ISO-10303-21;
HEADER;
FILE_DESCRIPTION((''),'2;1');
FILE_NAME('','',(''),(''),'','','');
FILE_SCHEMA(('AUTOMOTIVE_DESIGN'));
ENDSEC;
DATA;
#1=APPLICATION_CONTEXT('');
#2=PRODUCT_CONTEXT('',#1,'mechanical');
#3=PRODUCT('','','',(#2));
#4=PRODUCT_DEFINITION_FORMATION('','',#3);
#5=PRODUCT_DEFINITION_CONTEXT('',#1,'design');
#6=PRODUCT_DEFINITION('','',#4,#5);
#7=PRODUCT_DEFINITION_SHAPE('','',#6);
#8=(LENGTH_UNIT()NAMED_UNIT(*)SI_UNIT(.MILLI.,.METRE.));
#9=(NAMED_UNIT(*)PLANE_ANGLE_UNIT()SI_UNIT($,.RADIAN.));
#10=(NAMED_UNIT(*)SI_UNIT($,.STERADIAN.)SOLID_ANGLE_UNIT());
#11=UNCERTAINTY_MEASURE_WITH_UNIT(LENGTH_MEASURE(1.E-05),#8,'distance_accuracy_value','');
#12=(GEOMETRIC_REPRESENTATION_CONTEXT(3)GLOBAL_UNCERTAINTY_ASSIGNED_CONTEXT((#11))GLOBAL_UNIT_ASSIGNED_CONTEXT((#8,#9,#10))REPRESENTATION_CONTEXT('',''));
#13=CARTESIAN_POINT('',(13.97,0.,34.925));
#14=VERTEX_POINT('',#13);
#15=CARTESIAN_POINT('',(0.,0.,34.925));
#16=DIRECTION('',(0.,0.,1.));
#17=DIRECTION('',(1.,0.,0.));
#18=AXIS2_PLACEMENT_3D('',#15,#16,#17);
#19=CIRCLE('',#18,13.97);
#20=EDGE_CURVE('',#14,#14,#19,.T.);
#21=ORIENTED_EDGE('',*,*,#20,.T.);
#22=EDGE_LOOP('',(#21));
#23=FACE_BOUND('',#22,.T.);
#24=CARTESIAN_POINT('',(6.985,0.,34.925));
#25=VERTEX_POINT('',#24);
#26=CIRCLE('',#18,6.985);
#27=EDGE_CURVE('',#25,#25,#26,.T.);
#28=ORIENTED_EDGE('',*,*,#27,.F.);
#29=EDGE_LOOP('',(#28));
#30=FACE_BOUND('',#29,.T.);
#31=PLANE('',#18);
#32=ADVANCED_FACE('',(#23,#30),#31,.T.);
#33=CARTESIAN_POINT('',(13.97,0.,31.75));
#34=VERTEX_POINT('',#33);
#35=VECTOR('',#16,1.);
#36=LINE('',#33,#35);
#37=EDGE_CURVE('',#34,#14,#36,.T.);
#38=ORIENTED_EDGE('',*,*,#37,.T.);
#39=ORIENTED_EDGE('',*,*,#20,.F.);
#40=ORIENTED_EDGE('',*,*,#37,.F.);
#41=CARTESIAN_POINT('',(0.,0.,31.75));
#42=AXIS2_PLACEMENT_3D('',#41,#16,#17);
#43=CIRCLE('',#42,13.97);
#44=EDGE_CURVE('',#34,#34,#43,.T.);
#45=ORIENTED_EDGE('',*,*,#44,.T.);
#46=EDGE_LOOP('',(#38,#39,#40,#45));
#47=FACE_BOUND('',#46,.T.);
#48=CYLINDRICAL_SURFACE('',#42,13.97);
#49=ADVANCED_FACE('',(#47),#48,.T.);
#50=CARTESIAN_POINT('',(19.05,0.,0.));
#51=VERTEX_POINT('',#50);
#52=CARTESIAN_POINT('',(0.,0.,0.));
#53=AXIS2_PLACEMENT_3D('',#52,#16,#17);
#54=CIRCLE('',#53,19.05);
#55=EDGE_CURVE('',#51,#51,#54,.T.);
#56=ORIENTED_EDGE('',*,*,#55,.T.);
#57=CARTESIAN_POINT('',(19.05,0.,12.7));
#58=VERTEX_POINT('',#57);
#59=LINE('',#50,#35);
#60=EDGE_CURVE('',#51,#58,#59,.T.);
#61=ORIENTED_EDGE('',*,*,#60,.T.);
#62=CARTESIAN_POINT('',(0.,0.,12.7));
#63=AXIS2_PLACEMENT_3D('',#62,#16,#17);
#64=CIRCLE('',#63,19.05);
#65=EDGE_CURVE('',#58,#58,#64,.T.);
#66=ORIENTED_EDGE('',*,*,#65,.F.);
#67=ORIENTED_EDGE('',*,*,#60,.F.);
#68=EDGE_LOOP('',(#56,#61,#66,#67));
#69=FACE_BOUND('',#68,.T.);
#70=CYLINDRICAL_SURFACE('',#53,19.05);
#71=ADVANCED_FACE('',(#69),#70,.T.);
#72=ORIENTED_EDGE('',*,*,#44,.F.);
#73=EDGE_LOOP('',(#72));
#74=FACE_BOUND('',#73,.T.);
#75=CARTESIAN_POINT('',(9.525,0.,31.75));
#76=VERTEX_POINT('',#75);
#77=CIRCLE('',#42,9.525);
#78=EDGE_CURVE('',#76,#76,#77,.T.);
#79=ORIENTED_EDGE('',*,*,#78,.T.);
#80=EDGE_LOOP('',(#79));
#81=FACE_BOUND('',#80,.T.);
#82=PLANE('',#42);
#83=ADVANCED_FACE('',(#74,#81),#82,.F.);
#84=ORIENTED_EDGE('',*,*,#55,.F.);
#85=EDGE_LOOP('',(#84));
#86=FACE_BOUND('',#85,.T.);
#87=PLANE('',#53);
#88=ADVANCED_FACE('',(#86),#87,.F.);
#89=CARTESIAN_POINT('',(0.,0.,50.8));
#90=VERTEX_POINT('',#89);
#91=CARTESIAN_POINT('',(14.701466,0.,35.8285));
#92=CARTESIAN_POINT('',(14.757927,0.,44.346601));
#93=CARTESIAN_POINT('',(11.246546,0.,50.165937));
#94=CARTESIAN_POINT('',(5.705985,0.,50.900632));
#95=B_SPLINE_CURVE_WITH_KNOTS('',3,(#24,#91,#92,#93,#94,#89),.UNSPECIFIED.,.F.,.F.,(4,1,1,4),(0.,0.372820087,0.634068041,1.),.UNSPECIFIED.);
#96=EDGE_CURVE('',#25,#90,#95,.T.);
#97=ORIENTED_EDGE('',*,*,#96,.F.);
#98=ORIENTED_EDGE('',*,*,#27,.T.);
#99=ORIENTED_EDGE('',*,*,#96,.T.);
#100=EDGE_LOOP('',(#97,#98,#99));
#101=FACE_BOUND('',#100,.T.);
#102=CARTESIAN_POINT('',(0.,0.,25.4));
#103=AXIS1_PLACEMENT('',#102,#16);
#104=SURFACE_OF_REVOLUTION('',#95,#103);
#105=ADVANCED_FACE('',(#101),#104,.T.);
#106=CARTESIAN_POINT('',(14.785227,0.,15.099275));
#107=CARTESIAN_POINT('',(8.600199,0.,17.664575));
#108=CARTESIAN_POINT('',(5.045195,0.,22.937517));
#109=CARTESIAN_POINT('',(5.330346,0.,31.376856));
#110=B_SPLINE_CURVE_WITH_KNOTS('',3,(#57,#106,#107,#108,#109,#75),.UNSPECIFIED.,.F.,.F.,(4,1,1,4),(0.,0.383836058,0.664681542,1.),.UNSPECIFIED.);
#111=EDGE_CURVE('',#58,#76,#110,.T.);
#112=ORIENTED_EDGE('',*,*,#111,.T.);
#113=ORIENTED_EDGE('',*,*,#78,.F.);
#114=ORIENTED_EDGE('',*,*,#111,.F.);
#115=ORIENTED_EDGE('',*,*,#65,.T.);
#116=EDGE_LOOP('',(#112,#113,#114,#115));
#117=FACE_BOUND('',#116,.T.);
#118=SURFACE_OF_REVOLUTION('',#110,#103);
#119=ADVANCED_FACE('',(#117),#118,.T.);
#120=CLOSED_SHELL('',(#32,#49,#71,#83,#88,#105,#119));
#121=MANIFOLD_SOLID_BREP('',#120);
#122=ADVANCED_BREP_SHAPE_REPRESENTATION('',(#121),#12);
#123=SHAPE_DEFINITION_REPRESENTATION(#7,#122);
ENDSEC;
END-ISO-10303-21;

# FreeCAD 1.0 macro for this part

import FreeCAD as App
import Part
import Sketcher
from FreeCAD import Vector
Q = App.Units.Quantity

doc = App.newDocument("Part")
body = doc.addObject("PartDesign::Body", "Body")

# Sketch on XZ plane
sketch1 = body.newObject("Sketcher::SketchObject", "Sketch")
sketch1.AttachmentSupport = (doc.getObject("XZ_Plane"), [""])
sketch1.MapMode = "FlatFace"
sketch1.addGeometry([
    Part.LineSegment(Vector(0, 50.8, 0), Vector(0, 0, 0)),  # 0
    Part.LineSegment(Vector(0, 0, 0), Vector(19.05, 0, 0)),  # 1
    Part.LineSegment(Vector(19.05, 0, 0), Vector(19.05, 12.7, 0)),  # 2
    Part.BSplineCurve([Vector(19.05, 12.7, 0), Vector(14.785227, 15.099275, 0), Vector(8.600199, 17.664575, 0), Vector(5.045195, 22.937517, 0), Vector(5.330346, 31.376856, 0), Vector(9.525, 31.75, 0)], [4, 1, 1, 4], [0, 0.383836058, 0.664681542, 1], False, 3, [1, 1, 1, 1, 1, 1], False),  # 3
    Part.LineSegment(Vector(9.525, 31.75, 0), Vector(13.97, 31.75, 0)),  # 4
    Part.LineSegment(Vector(13.97, 31.75, 0), Vector(13.97, 34.925, 0)),  # 5
    Part.LineSegment(Vector(13.97, 34.925, 0), Vector(6.985, 34.925, 0)),  # 6
    Part.BSplineCurve([Vector(6.985, 34.925, 0), Vector(14.701466, 35.8285, 0), Vector(14.757927, 44.346601, 0), Vector(11.246546, 50.165937, 0), Vector(5.705985, 50.900632, 0), Vector(0, 50.8, 0)], [4, 1, 1, 4], [0, 0.372820087, 0.634068041, 1], False, 3, [1, 1, 1, 1, 1, 1], False),  # 7
], False)
sketch1.addConstraint([
    Sketcher.Constraint("Block", 3),
    Sketcher.Constraint("Block", 7),
    Sketcher.Constraint("Coincident", 0, 2, 1, 1),
    Sketcher.Constraint("Coincident", 1, 2, 2, 1),
    Sketcher.Constraint("Coincident", 2, 2, 3, 1),
    Sketcher.Constraint("Coincident", 3, 2, 4, 1),
    Sketcher.Constraint("Coincident", 4, 2, 5, 1),
    Sketcher.Constraint("Coincident", 5, 2, 6, 1),
    Sketcher.Constraint("Coincident", 6, 2, 7, 1),
    Sketcher.Constraint("Coincident", 7, 2, 0, 1),
    Sketcher.Constraint("Vertical", 0),
    Sketcher.Constraint("Horizontal", 1),
    Sketcher.Constraint("Vertical", 2),
    Sketcher.Constraint("Horizontal", 4),
    Sketcher.Constraint("Vertical", 5),
    Sketcher.Constraint("Horizontal", 6),
    Sketcher.Constraint("PointOnObject", 1, 2, -1),
    Sketcher.Constraint("DistanceX", 4, 2, 2, 2, Q("0.2 in")),
])
revolution = body.newObject("PartDesign::Revolution", "Revolution")
revolution.Profile = sketch1
revolution.ReferenceAxis = (sketch1, ["V_Axis"])
revolution.Angle = 360

doc.recompute()
